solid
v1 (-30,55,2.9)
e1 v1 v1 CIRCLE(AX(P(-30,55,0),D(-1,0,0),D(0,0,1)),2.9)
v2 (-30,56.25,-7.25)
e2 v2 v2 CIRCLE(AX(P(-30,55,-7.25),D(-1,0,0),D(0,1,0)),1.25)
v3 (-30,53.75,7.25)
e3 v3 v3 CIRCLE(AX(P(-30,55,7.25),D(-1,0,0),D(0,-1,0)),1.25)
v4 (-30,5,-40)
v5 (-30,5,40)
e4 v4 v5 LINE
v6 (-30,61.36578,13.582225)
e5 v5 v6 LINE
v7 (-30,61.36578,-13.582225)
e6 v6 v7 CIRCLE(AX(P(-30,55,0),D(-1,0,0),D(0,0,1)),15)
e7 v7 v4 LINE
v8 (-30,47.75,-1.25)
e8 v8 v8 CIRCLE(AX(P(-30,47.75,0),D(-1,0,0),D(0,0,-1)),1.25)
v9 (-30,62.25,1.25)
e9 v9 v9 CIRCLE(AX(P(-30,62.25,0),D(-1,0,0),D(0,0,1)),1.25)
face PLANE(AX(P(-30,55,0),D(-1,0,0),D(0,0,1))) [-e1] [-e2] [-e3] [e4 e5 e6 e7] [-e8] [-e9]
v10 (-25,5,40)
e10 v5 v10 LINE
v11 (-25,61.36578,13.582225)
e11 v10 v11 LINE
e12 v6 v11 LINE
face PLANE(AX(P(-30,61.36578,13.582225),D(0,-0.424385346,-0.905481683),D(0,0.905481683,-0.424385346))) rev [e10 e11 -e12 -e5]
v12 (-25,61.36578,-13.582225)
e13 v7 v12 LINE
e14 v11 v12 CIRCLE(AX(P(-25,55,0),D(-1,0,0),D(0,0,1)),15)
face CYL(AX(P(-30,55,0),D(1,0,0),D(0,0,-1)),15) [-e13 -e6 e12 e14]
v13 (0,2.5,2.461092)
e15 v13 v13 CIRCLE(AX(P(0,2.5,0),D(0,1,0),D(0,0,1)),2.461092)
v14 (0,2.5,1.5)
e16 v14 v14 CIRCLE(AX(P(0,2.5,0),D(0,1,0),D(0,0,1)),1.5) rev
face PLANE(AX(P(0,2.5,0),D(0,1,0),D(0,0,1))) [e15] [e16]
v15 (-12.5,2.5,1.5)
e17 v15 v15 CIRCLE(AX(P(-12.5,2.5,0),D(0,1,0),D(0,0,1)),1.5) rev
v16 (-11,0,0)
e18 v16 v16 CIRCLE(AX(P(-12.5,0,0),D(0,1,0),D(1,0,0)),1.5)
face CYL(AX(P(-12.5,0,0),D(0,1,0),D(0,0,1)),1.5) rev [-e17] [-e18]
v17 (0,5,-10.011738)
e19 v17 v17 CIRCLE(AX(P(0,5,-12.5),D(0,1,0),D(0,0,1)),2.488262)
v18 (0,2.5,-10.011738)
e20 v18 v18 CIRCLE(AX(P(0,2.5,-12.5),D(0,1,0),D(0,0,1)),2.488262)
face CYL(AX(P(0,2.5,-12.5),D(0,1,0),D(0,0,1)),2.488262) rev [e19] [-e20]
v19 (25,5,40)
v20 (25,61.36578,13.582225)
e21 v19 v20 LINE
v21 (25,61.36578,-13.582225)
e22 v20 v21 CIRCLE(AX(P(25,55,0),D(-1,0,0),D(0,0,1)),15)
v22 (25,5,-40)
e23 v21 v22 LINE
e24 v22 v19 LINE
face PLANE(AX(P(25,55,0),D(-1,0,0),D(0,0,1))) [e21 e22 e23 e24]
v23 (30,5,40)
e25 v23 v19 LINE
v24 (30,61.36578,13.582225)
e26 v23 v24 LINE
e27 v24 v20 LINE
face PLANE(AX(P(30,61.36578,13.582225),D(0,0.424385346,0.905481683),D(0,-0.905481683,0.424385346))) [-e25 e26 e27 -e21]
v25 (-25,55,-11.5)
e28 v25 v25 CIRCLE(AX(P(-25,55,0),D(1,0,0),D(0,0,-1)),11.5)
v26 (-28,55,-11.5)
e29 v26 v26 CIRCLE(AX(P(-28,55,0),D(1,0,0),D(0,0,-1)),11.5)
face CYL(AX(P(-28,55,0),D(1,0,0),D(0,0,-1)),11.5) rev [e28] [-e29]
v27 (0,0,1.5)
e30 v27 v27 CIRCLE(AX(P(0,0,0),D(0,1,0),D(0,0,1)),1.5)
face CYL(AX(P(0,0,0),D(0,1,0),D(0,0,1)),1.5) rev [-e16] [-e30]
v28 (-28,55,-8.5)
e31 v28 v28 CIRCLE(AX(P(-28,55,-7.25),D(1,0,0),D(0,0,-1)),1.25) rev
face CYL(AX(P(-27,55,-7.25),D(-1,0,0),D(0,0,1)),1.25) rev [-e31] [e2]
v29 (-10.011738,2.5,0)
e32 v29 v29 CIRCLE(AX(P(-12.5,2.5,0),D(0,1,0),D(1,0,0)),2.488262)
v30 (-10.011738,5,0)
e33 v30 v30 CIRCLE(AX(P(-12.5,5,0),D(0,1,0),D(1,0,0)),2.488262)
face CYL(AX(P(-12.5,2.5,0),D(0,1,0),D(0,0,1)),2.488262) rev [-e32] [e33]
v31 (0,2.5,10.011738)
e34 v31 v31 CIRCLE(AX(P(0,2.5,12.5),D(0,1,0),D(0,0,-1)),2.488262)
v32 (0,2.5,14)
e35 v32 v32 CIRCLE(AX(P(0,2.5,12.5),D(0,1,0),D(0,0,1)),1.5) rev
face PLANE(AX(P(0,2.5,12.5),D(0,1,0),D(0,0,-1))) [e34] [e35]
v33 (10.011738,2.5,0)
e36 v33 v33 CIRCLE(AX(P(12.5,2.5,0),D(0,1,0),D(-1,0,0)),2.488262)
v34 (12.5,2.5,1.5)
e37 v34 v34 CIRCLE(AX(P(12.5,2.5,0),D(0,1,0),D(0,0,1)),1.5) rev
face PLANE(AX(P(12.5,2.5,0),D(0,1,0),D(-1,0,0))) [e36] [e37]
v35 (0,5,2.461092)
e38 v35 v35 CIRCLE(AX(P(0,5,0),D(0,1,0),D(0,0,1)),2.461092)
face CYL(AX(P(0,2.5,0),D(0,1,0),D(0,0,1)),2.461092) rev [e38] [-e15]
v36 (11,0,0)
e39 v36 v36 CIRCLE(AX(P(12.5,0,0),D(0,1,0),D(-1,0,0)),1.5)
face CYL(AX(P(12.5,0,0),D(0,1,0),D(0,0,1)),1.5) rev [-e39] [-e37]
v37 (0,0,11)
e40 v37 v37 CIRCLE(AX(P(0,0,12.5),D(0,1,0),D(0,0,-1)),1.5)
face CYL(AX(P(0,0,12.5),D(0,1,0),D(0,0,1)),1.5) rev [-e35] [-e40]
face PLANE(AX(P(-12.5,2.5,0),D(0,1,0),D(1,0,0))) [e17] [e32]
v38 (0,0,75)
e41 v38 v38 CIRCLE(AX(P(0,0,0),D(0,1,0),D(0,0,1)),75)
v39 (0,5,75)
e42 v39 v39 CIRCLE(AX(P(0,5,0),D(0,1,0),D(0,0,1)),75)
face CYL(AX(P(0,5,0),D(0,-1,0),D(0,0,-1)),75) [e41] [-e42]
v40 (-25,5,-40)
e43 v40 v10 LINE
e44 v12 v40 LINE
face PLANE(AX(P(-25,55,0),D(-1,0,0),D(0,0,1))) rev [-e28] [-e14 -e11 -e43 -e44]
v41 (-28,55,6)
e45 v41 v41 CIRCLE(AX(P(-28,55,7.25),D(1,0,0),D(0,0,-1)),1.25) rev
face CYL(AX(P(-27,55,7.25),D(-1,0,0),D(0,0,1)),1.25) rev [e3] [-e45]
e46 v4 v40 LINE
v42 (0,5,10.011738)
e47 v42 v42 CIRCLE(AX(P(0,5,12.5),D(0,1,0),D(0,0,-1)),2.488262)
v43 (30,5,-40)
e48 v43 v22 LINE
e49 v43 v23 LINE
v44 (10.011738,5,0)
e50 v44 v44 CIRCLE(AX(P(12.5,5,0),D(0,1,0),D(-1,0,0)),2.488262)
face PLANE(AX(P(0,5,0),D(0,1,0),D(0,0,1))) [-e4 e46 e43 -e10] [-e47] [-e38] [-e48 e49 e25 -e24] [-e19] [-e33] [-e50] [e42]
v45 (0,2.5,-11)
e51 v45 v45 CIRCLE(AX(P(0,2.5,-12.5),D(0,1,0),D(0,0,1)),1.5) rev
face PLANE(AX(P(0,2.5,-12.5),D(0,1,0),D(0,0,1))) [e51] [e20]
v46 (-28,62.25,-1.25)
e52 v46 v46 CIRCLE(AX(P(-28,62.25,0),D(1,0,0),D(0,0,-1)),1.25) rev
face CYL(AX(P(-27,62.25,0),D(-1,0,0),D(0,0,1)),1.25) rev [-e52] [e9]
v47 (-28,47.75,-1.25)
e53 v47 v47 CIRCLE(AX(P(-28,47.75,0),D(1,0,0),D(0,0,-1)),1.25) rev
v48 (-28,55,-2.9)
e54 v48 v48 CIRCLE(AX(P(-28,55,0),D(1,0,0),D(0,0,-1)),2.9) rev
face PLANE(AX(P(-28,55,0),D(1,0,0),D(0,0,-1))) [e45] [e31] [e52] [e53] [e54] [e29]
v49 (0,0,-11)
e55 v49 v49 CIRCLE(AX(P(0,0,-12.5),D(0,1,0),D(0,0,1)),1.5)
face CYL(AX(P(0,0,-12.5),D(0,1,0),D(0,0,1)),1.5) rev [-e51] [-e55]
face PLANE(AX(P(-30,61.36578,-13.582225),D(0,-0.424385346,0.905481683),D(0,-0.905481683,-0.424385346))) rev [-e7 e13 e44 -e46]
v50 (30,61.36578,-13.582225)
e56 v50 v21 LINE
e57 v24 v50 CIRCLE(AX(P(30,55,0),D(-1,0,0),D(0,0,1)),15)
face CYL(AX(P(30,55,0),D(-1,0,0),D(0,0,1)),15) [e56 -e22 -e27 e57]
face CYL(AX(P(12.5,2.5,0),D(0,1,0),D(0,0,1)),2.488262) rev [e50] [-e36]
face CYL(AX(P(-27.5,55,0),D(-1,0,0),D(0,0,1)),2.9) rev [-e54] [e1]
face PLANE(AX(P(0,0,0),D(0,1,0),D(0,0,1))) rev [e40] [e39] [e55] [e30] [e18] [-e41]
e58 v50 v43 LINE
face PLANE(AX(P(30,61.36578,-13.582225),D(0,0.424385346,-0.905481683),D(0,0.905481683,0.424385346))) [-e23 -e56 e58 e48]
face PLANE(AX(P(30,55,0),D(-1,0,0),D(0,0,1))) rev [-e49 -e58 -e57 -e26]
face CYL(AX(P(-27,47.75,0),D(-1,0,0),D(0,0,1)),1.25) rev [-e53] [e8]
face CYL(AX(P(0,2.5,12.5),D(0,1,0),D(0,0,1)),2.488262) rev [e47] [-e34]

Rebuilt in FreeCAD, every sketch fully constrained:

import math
import FreeCAD as App
import Part
import Sketcher

V = App.Vector
Q = App.Units.Quantity

doc = App.newDocument("Part")
body = doc.addObject("PartDesign::Body", "Body")

# Sketch on XZ plane
sketch1 = body.newObject("Sketcher::SketchObject", "Sketch")
sketch1.AttachmentSupport = (doc.getObject("XZ_Plane"), [""])
sketch1.MapMode = "FlatFace"
sketch1.addGeometry(Part.Circle(V(0, 0, 0), V(0, 0, 1), 75), False)
sketch1.addConstraint(Sketcher.Constraint("Coincident", 0, 3, -1, 1))
sketch1.addConstraint(Sketcher.Constraint("Diameter", 0, Q("150 mm")))
pad1 = body.newObject("PartDesign::Pad", "Pad")
pad1.Profile = sketch1
pad1.Length = 5
pad1.Reversed = True

# Sketch on YZ plane
sketch2 = body.newObject("Sketcher::SketchObject", "Sketch001")
sketch2.AttachmentSupport = (doc.getObject("YZ_Plane"), [""])
sketch2.MapMode = "FlatFace"
sketch2.AttachmentOffset = App.Placement(V(0, 0, -25), App.Rotation())
sketch2.addGeometry(Part.LineSegment(V(61, -14, 0), V(5, -40, 0)), False)
sketch2.addGeometry(Part.LineSegment(V(5, -40, 0), V(5, 40, 0)), False)
sketch2.addGeometry(Part.LineSegment(V(5, 40, 0), V(61, 14, 0)), False)
sketch2.addGeometry(Part.ArcOfCircle(Part.Circle(V(55, 0, 0), V(0, 0, 1), 15), math.radians(-65), math.radians(65)), False)
sketch2.addConstraint(Sketcher.Constraint("Coincident", 0, 2, 1, 1))
sketch2.addConstraint(Sketcher.Constraint("Coincident", 1, 2, 2, 1))
sketch2.addConstraint(Sketcher.Constraint("Tangent", 2, 2, 3, 2))
sketch2.addConstraint(Sketcher.Constraint("Tangent", 3, 1, 0, 1))
sketch2.addConstraint(Sketcher.Constraint("Vertical", 1))
sketch2.addConstraint(Sketcher.Constraint("Symmetric", 2, 2, 3, 1, -1))
sketch2.addConstraint(Sketcher.Constraint("Radius", 3, Q("15 mm")))
sketch2.addConstraint(Sketcher.Constraint("DistanceY", 1, 1, 1, 2, Q("80 mm")))
sketch2.addConstraint(Sketcher.Constraint("DistanceX", -1, 1, 3, 3, Q("55 mm")))
sketch2.addConstraint(Sketcher.Constraint("DistanceX", -1, 1, 0, 2, Q("5 mm")))
pad2 = body.newObject("PartDesign::Pad", "Pad001")
pad2.Profile = sketch2
pad2.Length = 5
pad2.Reversed = True

# Sketch on YZ plane
sketch3 = body.newObject("Sketcher::SketchObject", "Sketch002")
sketch3.AttachmentSupport = (doc.getObject("YZ_Plane"), [""])
sketch3.MapMode = "FlatFace"
sketch3.AttachmentOffset = App.Placement(V(0, 0, 30), App.Rotation())
sketch3.addGeometry(Part.LineSegment(V(5, 40, 0), V(61, 14, 0)), False)
sketch3.addGeometry(Part.ArcOfCircle(Part.Circle(V(55, 0, 0), V(0, 0, 1), 15), math.radians(-65), math.radians(65)), False)
sketch3.addGeometry(Part.LineSegment(V(61, -14, 0), V(5, -40, 0)), False)
sketch3.addGeometry(Part.LineSegment(V(5, -40, 0), V(5, 40, 0)), False)
sketch3.addConstraint(Sketcher.Constraint("Tangent", 0, 2, 1, 2))
sketch3.addConstraint(Sketcher.Constraint("Tangent", 1, 1, 2, 1))
sketch3.addConstraint(Sketcher.Constraint("Coincident", 2, 2, 3, 1))
sketch3.addConstraint(Sketcher.Constraint("Coincident", 3, 2, 0, 1))
sketch3.addConstraint(Sketcher.Constraint("Vertical", 3))
sketch3.addConstraint(Sketcher.Constraint("Symmetric", 0, 2, 1, 1, -1))
sketch3.addConstraint(Sketcher.Constraint("Radius", 1, Q("15 mm")))
sketch3.addConstraint(Sketcher.Constraint("DistanceY", 3, 1, 3, 2, Q("80 mm")))
sketch3.addConstraint(Sketcher.Constraint("DistanceX", -1, 1, 1, 3, Q("55 mm")))
sketch3.addConstraint(Sketcher.Constraint("DistanceX", -1, 1, 2, 2, Q("5 mm")))
pad3 = body.newObject("PartDesign::Pad", "Pad002")
pad3.Profile = sketch3
pad3.Length = 5
pad3.Reversed = True

# Sketch on YZ plane
sketch4 = body.newObject("Sketcher::SketchObject", "Sketch003")
sketch4.AttachmentSupport = (doc.getObject("YZ_Plane"), [""])
sketch4.MapMode = "FlatFace"
sketch4.AttachmentOffset = App.Placement(V(0, 0, -30), App.Rotation())
sketch4.addGeometry(Part.Circle(V(55, 0, 0), V(0, 0, 1), 1.5), False)
sketch4.addConstraint(Sketcher.Constraint("PointOnObject", 0, 3, -1))
sketch4.addConstraint(Sketcher.Constraint("Diameter", 0, Q("3 mm")))
sketch4.addConstraint(Sketcher.Constraint("DistanceX", -1, 1, 0, 3, Q("55 mm")))
pocket1 = body.newObject("PartDesign::Pocket", "Pocket")
pocket1.Profile = sketch4
pocket1.Length = 5
pocket1.Reversed = True

# Sketch on YZ plane
sketch5 = body.newObject("Sketcher::SketchObject", "Sketch004")
sketch5.AttachmentSupport = (doc.getObject("YZ_Plane"), [""])
sketch5.MapMode = "FlatFace"
sketch5.AttachmentOffset = App.Placement(V(0, 0, -30), App.Rotation())
sketch5.addGeometry(Part.Circle(V(55, 0, 0), V(0, 0, 1), 2.9), False)
sketch5.addConstraint(Sketcher.Constraint("PointOnObject", 0, 3, -1))
sketch5.addConstraint(Sketcher.Constraint("Diameter", 0, Q("5.8 mm")))
sketch5.addConstraint(Sketcher.Constraint("DistanceX", -1, 1, 0, 3, Q("55 mm")))
pocket2 = body.newObject("PartDesign::Pocket", "Pocket001")
pocket2.Profile = sketch5
pocket2.Length = 2.5
pocket2.Reversed = True

# Sketch on YZ plane
sketch6 = body.newObject("Sketcher::SketchObject", "Sketch005")
sketch6.AttachmentSupport = (doc.getObject("YZ_Plane"), [""])
sketch6.MapMode = "FlatFace"
sketch6.AttachmentOffset = App.Placement(V(0, 0, -30), App.Rotation())
sketch6.addGeometry(Part.Circle(V(62.2, 0, 0), V(0, 0, 1), 0.6), False)
sketch6.addConstraint(Sketcher.Constraint("PointOnObject", 0, 3, -1))
sketch6.addConstraint(Sketcher.Constraint("Diameter", 0, Q("1.2 mm")))
sketch6.addConstraint(Sketcher.Constraint("DistanceX", -1, 1, 0, 3, Q("62.25 mm")))
pocket3 = body.newObject("PartDesign::Pocket", "Pocket002")
pocket3.Profile = sketch6
pocket3.Length = 5
pocket3.Reversed = True
doc.recompute()

datumline = body.newObject("PartDesign::Line", "DatumLine")
datumline.Placement = App.Placement(V(0, 55, 0), App.Rotation(V(0, 0, 1), V(1, 0, 0)))
polarpattern = body.newObject("PartDesign::PolarPattern", "PolarPattern")
polarpattern.Originals = [pocket3]
polarpattern.Axis = (datumline, [""])
polarpattern.Angle = 360
polarpattern.Occurrences = 4
body.Tip = polarpattern

# Sketch on YZ plane
sketch7 = body.newObject("Sketcher::SketchObject", "Sketch006")
sketch7.AttachmentSupport = (doc.getObject("YZ_Plane"), [""])
sketch7.MapMode = "FlatFace"
sketch7.AttachmentOffset = App.Placement(V(0, 0, -30), App.Rotation())
sketch7.addGeometry(Part.Circle(V(62.2, 0, 0), V(0, 0, 1), 1.2), False)
sketch7.addConstraint(Sketcher.Constraint("PointOnObject", 0, 3, -1))
sketch7.addConstraint(Sketcher.Constraint("Diameter", 0, Q("2.5 mm")))
sketch7.addConstraint(Sketcher.Constraint("DistanceX", -1, 1, 0, 3, Q("62.25 mm")))
pocket4 = body.newObject("PartDesign::Pocket", "Pocket003")
pocket4.Profile = sketch7
pocket4.Length = 3
pocket4.Reversed = True
doc.recompute()

datumline2 = body.newObject("PartDesign::Line", "DatumLine001")
datumline2.Placement = App.Placement(V(0, 55, 0), App.Rotation(V(0, 0, 1), V(1, 0, 0)))
polarpattern2 = body.newObject("PartDesign::PolarPattern", "PolarPattern001")
polarpattern2.Originals = [pocket4]
polarpattern2.Axis = (datumline2, [""])
polarpattern2.Angle = 360
polarpattern2.Occurrences = 4
body.Tip = polarpattern2

# Sketch on XZ plane
sketch8 = body.newObject("Sketcher::SketchObject", "Sketch007")
sketch8.AttachmentSupport = (doc.getObject("XZ_Plane"), [""])
sketch8.MapMode = "FlatFace"
sketch8.AttachmentOffset = App.Placement(V(0, 0, -5), App.Rotation())
sketch8.addGeometry(Part.Circle(V(0, 0, 0), V(0, 0, 1), 1.5), False)
sketch8.addConstraint(Sketcher.Constraint("Coincident", 0, 3, -1, 1))
sketch8.addConstraint(Sketcher.Constraint("Diameter", 0, Q("3 mm")))
pocket5 = body.newObject("PartDesign::Pocket", "Pocket004")
pocket5.Profile = sketch8
pocket5.Length = 5
pocket5.Reversed = True

# Sketch on XZ plane
sketch9 = body.newObject("Sketcher::SketchObject", "Sketch008")
sketch9.AttachmentSupport = (doc.getObject("XZ_Plane"), [""])
sketch9.MapMode = "FlatFace"
sketch9.AttachmentOffset = App.Placement(V(0, 0, -5), App.Rotation())
sketch9.addGeometry(Part.Circle(V(0, -12.5, 0), V(0, 0, 1), 1.5), False)
sketch9.addConstraint(Sketcher.Constraint("PointOnObject", 0, 3, -2))
sketch9.addConstraint(Sketcher.Constraint("Diameter", 0, Q("3 mm")))
sketch9.addConstraint(Sketcher.Constraint("DistanceY", 0, 3, -1, 1, Q("12.5 mm")))
pocket6 = body.newObject("PartDesign::Pocket", "Pocket005")
pocket6.Profile = sketch9
pocket6.Length = 5
pocket6.Reversed = True
doc.recompute()

polarpattern3 = body.newObject("PartDesign::PolarPattern", "PolarPattern002")
polarpattern3.Originals = [pocket6]
polarpattern3.Axis = (doc.getObject("Y_Axis"), [""])
polarpattern3.Angle = 360
polarpattern3.Occurrences = 4
body.Tip = polarpattern3

# Sketch on XZ plane
sketch10 = body.newObject("Sketcher::SketchObject", "Sketch009")
sketch10.AttachmentSupport = (doc.getObject("XZ_Plane"), [""])
sketch10.MapMode = "FlatFace"
sketch10.AttachmentOffset = App.Placement(V(0, 0, -5), App.Rotation())
sketch10.addGeometry(Part.Circle(V(0, -12.5, 0), V(0, 0, 1), 2.5), False)
sketch10.addConstraint(Sketcher.Constraint("PointOnObject", 0, 3, -2))
sketch10.addConstraint(Sketcher.Constraint("DistanceY", 0, 3, -1, 1, Q("12.5 mm")))
sketch10.addConstraint(Sketcher.Constraint("Diameter", 0, Q("4.976524 mm")))
pocket7 = body.newObject("PartDesign::Pocket", "Pocket006")
pocket7.Profile = sketch10
pocket7.Length = 2.5
pocket7.Reversed = True
doc.recompute()

polarpattern4 = body.newObject("PartDesign::PolarPattern", "PolarPattern003")
polarpattern4.Originals = [pocket7]
polarpattern4.Axis = (doc.getObject("Y_Axis"), [""])
polarpattern4.Angle = 360
polarpattern4.Occurrences = 4
body.Tip = polarpattern4

# Sketch on XZ plane
sketch11 = body.newObject("Sketcher::SketchObject", "Sketch010")
sketch11.AttachmentSupport = (doc.getObject("XZ_Plane"), [""])
sketch11.MapMode = "FlatFace"
sketch11.AttachmentOffset = App.Placement(V(0, 0, -5), App.Rotation())
sketch11.addGeometry(Part.Circle(V(0, 0, 0), V(0, 0, 1), 2.5), False)
sketch11.addConstraint(Sketcher.Constraint("Coincident", 0, 3, -1, 1))
sketch11.addConstraint(Sketcher.Constraint("Diameter", 0, Q("4.922185 mm")))
pocket8 = body.newObject("PartDesign::Pocket", "Pocket007")
pocket8.Profile = sketch11
pocket8.Length = 2.5
pocket8.Reversed = True

# Sketch on YZ plane
sketch12 = body.newObject("Sketcher::SketchObject", "Sketch011")
sketch12.AttachmentSupport = (doc.getObject("YZ_Plane"), [""])
sketch12.MapMode = "FlatFace"
sketch12.AttachmentOffset = App.Placement(V(0, 0, -25), App.Rotation())
sketch12.addGeometry(Part.Circle(V(55, 0, 0), V(0, 0, 1), 12), False)
sketch12.addConstraint(Sketcher.Constraint("PointOnObject", 0, 3, -1))
sketch12.addConstraint(Sketcher.Constraint("Diameter", 0, Q("23 mm")))
sketch12.addConstraint(Sketcher.Constraint("DistanceX", -1, 1, 0, 3, Q("55 mm")))
pocket9 = body.newObject("PartDesign::Pocket", "Pocket008")
pocket9.Profile = sketch12
pocket9.Length = 3

doc.recompute()
